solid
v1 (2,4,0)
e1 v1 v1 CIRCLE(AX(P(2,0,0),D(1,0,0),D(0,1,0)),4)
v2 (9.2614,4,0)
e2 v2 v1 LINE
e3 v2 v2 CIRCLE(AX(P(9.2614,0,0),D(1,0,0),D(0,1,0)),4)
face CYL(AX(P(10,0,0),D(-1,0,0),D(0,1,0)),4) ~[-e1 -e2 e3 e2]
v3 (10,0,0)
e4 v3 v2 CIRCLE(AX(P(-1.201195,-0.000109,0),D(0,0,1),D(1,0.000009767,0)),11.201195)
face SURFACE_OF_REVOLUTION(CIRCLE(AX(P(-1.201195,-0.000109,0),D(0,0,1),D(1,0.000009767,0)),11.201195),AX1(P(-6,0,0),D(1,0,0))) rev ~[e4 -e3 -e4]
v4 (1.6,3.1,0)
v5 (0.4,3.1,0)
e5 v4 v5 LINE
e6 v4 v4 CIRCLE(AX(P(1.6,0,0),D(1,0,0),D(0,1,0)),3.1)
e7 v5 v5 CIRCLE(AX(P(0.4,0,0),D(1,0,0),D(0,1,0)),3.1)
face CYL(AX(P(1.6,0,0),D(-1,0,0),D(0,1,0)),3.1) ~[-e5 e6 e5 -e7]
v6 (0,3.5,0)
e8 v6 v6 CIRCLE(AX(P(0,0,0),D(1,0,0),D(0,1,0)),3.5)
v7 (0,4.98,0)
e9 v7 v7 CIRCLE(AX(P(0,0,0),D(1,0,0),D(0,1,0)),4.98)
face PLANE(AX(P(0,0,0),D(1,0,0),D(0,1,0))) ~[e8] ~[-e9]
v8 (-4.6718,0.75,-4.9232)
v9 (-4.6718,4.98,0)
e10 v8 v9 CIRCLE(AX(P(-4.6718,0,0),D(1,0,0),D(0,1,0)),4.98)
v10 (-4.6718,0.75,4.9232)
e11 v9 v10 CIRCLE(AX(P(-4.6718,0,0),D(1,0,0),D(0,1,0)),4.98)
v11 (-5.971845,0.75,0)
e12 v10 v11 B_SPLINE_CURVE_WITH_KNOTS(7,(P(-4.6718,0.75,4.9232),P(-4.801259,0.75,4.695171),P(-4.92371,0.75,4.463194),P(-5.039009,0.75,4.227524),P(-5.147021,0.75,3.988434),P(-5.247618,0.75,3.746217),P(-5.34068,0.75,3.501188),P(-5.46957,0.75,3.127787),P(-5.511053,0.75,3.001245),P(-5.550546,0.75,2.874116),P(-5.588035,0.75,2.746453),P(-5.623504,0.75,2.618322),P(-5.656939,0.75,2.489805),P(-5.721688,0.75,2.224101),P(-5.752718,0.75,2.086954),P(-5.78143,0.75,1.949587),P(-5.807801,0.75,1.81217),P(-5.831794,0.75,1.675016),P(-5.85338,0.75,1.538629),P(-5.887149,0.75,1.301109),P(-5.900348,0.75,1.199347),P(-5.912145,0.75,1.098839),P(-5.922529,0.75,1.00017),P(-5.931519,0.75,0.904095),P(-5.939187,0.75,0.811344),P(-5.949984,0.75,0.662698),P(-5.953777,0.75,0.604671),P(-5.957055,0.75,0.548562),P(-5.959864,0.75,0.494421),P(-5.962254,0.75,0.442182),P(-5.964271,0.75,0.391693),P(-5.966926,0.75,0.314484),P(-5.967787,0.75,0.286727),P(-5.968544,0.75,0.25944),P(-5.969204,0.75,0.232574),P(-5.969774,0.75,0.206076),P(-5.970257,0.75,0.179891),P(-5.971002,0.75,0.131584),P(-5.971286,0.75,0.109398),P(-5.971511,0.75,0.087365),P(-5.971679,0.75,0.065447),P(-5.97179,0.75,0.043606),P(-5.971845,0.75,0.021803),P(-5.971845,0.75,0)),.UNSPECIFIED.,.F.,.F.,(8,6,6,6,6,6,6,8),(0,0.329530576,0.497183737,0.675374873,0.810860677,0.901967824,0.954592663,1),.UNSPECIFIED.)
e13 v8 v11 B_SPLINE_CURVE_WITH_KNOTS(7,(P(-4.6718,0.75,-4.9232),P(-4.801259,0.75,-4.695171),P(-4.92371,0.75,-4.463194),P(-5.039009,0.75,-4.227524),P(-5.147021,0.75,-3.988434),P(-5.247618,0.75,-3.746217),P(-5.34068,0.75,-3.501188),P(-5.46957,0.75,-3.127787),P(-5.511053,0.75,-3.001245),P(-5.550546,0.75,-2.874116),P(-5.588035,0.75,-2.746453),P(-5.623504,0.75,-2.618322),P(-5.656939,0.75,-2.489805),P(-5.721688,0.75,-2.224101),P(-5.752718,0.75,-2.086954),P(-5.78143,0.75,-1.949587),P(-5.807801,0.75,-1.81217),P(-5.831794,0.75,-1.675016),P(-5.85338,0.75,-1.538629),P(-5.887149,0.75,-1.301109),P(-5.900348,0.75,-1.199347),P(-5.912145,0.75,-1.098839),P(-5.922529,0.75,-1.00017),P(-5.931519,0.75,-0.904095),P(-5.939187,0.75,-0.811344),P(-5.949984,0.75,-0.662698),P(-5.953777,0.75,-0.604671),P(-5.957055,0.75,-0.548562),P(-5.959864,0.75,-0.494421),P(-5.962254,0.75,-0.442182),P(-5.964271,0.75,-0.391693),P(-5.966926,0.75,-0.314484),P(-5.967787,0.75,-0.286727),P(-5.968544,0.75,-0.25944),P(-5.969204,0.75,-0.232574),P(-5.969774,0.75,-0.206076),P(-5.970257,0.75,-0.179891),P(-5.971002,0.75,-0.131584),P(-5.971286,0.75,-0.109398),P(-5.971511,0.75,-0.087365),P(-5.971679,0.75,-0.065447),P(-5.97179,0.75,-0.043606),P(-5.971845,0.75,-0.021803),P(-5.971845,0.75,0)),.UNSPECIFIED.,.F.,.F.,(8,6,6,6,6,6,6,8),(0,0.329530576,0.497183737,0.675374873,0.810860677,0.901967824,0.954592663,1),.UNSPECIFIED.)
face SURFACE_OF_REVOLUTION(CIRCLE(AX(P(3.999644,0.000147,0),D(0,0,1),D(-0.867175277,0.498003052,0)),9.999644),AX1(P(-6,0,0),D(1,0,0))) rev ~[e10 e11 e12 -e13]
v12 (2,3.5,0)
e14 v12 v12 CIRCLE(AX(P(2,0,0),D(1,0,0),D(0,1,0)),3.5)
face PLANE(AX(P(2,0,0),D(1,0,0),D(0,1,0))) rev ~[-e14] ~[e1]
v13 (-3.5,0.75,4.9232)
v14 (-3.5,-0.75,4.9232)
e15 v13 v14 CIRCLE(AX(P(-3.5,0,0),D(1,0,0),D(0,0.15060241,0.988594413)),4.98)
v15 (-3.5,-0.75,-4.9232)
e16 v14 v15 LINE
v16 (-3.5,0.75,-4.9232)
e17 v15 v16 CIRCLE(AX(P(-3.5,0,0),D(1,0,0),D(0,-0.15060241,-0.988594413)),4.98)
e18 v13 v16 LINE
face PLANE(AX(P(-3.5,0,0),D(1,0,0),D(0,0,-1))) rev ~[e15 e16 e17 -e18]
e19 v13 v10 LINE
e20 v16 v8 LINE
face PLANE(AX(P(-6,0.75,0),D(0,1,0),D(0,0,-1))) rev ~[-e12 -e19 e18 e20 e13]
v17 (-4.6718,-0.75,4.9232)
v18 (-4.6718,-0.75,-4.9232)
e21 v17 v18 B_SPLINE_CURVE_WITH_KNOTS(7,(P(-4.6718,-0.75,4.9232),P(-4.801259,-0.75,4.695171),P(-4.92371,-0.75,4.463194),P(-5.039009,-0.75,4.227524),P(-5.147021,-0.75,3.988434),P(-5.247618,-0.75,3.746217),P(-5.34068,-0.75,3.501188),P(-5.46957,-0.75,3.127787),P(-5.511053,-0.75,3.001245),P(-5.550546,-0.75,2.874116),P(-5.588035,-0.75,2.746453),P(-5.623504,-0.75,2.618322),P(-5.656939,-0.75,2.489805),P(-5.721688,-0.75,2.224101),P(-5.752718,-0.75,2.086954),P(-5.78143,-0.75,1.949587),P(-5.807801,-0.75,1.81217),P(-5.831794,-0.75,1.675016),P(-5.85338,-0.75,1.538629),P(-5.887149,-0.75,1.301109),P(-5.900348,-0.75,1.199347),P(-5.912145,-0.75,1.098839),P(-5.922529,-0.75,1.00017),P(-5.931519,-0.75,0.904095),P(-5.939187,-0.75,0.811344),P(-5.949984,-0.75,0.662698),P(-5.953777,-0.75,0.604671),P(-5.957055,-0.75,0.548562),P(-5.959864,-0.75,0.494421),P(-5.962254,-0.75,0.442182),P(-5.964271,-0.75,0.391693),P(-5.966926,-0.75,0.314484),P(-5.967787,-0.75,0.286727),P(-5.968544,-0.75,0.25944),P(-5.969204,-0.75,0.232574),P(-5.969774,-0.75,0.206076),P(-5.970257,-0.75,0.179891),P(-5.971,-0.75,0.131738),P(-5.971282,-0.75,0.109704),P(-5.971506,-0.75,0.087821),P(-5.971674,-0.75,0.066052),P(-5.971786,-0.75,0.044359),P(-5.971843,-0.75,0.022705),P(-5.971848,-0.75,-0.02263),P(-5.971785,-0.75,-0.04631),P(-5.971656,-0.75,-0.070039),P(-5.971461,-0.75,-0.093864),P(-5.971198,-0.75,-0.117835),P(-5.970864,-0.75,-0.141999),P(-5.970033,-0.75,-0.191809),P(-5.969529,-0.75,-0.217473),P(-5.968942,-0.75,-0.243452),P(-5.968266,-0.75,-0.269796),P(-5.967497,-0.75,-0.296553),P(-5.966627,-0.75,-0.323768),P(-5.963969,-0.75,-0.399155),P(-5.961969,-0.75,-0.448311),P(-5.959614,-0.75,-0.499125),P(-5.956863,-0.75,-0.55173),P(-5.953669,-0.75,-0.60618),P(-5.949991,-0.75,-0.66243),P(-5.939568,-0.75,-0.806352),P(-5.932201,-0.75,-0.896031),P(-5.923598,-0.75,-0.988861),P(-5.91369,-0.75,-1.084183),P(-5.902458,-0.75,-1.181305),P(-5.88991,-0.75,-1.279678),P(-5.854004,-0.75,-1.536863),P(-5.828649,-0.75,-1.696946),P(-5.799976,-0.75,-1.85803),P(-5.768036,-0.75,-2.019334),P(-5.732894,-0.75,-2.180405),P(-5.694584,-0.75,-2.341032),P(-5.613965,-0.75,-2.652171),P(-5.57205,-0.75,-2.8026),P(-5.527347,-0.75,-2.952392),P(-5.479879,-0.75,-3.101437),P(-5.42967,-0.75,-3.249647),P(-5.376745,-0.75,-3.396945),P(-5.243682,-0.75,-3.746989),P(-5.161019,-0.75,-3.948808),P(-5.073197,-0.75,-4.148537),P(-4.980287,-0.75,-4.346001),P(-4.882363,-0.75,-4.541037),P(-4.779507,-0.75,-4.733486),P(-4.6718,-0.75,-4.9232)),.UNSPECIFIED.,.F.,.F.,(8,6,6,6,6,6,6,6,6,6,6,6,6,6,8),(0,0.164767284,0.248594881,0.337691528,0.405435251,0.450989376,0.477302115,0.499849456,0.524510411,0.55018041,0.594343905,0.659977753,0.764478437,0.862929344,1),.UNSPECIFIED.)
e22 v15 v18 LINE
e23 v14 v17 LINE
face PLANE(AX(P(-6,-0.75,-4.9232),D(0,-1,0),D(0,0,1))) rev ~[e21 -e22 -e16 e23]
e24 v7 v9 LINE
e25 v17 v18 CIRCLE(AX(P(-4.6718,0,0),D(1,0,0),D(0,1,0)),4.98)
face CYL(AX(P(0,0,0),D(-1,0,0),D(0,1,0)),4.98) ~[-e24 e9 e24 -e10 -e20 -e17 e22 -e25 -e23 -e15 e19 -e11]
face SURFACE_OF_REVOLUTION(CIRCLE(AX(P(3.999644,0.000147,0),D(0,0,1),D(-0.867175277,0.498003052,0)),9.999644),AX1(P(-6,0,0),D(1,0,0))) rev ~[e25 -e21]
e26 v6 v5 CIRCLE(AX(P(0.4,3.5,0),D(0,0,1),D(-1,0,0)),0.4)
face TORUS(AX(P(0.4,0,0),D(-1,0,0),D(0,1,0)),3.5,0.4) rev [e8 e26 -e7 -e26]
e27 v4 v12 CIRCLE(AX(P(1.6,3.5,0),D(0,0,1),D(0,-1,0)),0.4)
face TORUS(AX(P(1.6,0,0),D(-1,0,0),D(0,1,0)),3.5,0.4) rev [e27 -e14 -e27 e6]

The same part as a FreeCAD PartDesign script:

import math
import FreeCAD as App
import Part
import Sketcher
from FreeCAD import Vector
Q = App.Units.Quantity


def add_polygon(sketch, points):
    """Adds a closed chain of lines whose ends are joined by coincident constraints."""
    first, n = sketch.GeometryCount, len(points)
    for a, b in zip(points, points[1:] + points[:1]):
        sketch.addGeometry(Part.LineSegment(App.Vector(*a, 0), App.Vector(*b, 0)), False)
    for i in range(n):
        sketch.addConstraint(Sketcher.Constraint("Coincident", first + i, 2, first + (i + 1) % n, 1))

doc = App.newDocument("Part")
body = doc.addObject("PartDesign::Body", "Body")

sketch1 = doc.addObject("Sketcher::SketchObject", "Sketch")
body.addObject(sketch1)
sketch1.AttachmentSupport = (doc.XY_Plane, [""])
sketch1.MapMode = "FlatFace"
sketch1.addGeometry(Part.ArcOfCircle(Part.Circle(Vector(4, 0, 0), Vector(0, 0, 1), 10.000026), math.radians(150.132316), math.radians(180)), False)
sketch1.addGeometry(Part.LineSegment(Vector(-6, 0, 0), Vector(10, 0, 0)), False)
sketch1.addGeometry(Part.LineSegment(Vector(10, 0, 0), Vector(10, 4, 0)), False)
sketch1.addGeometry(Part.LineSegment(Vector(10, 4, 0), Vector(0, 4, 0)), False)
sketch1.addGeometry(Part.LineSegment(Vector(0, 4, 0), Vector(0, 4.98, 0)), False)
sketch1.addGeometry(Part.LineSegment(Vector(0, 4.98, 0), Vector(-4.6718, 4.98, 0)), False)
sketch1.addConstraint(Sketcher.Constraint("Coincident", 0, 2, 1, 1))
sketch1.addConstraint(Sketcher.Constraint("Coincident", 1, 2, 2, 1))
sketch1.addConstraint(Sketcher.Constraint("Coincident", 2, 2, 3, 1))
sketch1.addConstraint(Sketcher.Constraint("Coincident", 3, 2, 4, 1))
sketch1.addConstraint(Sketcher.Constraint("Coincident", 4, 2, 5, 1))
sketch1.addConstraint(Sketcher.Constraint("Coincident", 5, 2, 0, 1))
sketch1.addConstraint(Sketcher.Constraint("Horizontal", 1))
sketch1.addConstraint(Sketcher.Constraint("Vertical", 2))
sketch1.addConstraint(Sketcher.Constraint("Horizontal", 3))
sketch1.addConstraint(Sketcher.Constraint("Vertical", 4))
sketch1.addConstraint(Sketcher.Constraint("Horizontal", 5))
sketch1.addConstraint(Sketcher.Constraint("PointOnObject", 0, 3, -1))
sketch1.addConstraint(Sketcher.Constraint("PointOnObject", 0, 2, -1))
sketch1.addConstraint(Sketcher.Constraint("PointOnObject", 3, 2, -2))
sketch1.addConstraint(Sketcher.Constraint("Radius", 0, Q("10 mm")))
sketch1.addConstraint(Sketcher.Constraint("DistanceX", 3, 2, 3, 1, Q("10 mm")))
sketch1.addConstraint(Sketcher.Constraint("DistanceX", 0, 2, -1, 1, Q("6 mm")))
sketch1.addConstraint(Sketcher.Constraint("DistanceY", 2, 1, 2, 2, Q("4 mm")))
sketch1.addConstraint(Sketcher.Constraint("DistanceY", 4, 1, 4, 2, Q("0.98 mm")))
revolution = doc.addObject("PartDesign::Revolution", "Revolution")
body.addObject(revolution)
revolution.Profile = sketch1
revolution.ReferenceAxis = (sketch1, ["H_Axis"])
revolution.Angle = 360

sketch2 = doc.addObject("Sketcher::SketchObject", "Sketch001")
body.addObject(sketch2)
sketch2.AttachmentSupport = (doc.YZ_Plane, [""])
sketch2.MapMode = "FlatFace"
sketch2.AttachmentOffset = App.Placement(Vector(0, 0, -6), App.Rotation())
add_polygon(sketch2, [(0.75, 4.98), (-0.75, 4.98), (-0.75, -4.98), (0.75, -4.98)])
sketch2.addConstraint(Sketcher.Constraint("Horizontal", 0))
sketch2.addConstraint(Sketcher.Constraint("Vertical", 1))
sketch2.addConstraint(Sketcher.Constraint("Horizontal", 2))
sketch2.addConstraint(Sketcher.Constraint("Vertical", 3))
sketch2.addConstraint(Sketcher.Constraint("Symmetric", 0, 2, 2, 2, -1, 1))
sketch2.addConstraint(Sketcher.Constraint("DistanceX", 0, 2, 0, 1, Q("1.5 mm")))
sketch2.addConstraint(Sketcher.Constraint("DistanceY", 1, 2, 1, 1, Q("9.96 mm")))
pocket1 = doc.addObject("PartDesign::Pocket", "Pocket")
body.addObject(pocket1)
pocket1.Profile = sketch2
pocket1.Length = 2.5
pocket1.Reversed = True

sketch3 = doc.addObject("Sketcher::SketchObject", "Sketch002")
body.addObject(sketch3)
sketch3.AttachmentSupport = (doc.XY_Plane, [""])
sketch3.MapMode = "FlatFace"
sketch3.addGeometry(Part.ArcOfCircle(Part.Circle(Vector(-1.201195, -0.000109, 0), Vector(0, 0, 1), 11.201195), math.radians(0.00056), math.radians(20.923094)), False)
sketch3.addGeometry(Part.LineSegment(Vector(10, 0, 0), Vector(10, 4, 0)), False)
sketch3.addGeometry(Part.LineSegment(Vector(10, 4, 0), Vector(9.2614, 4, 0)), False)
sketch3.addConstraint(Sketcher.Constraint("Tangent", 0, 1, 1, 1))
sketch3.addConstraint(Sketcher.Constraint("Coincident", 1, 2, 2, 1))
sketch3.addConstraint(Sketcher.Constraint("Coincident", 2, 2, 0, 2))
sketch3.addConstraint(Sketcher.Constraint("Vertical", 1))
sketch3.addConstraint(Sketcher.Constraint("Horizontal", 2))
sketch3.addConstraint(Sketcher.Constraint("PointOnObject", 0, 3, -1))
sketch3.addConstraint(Sketcher.Constraint("DistanceX", -1, 1, 0, 1, Q("10 mm")))
sketch3.addConstraint(Sketcher.Constraint("DistanceY", 1, 1, 1, 2, Q("4 mm")))
sketch3.addConstraint(Sketcher.Constraint("Radius", 0, Q("11.2012 mm")))
groove = doc.addObject("PartDesign::Groove", "Groove")
body.addObject(groove)
groove.Profile = sketch3
groove.ReferenceAxis = (sketch3, ["H_Axis"])
groove.Angle = 360

sketch4 = doc.addObject("Sketcher::SketchObject", "Sketch003")
body.addObject(sketch4)
sketch4.AttachmentSupport = (doc.XY_Plane, [""])
sketch4.MapMode = "FlatFace"
sketch4.addGeometry(Part.LineSegment(Vector(0, 4, 0), Vector(0, 3.5, 0)), False)
sketch4.addGeometry(Part.ArcOfCircle(Part.Circle(Vector(0.4, 3.5, 0), Vector(0, 0, 1), 0.4), math.radians(180), math.radians(270)), False)
sketch4.addGeometry(Part.LineSegment(Vector(0.4, 3.1, 0), Vector(1.6, 3.1, 0)), False)
sketch4.addGeometry(Part.ArcOfCircle(Part.Circle(Vector(1.6, 3.5, 0), Vector(0, 0, 1), 0.4), math.radians(-90), math.radians(0)), False)
sketch4.addGeometry(Part.LineSegment(Vector(2, 3.5, 0), Vector(2, 4, 0)), False)
sketch4.addGeometry(Part.LineSegment(Vector(2, 4, 0), Vector(0, 4, 0)), False)
sketch4.addConstraint(Sketcher.Constraint("Tangent", 0, 2, 1, 1))
sketch4.addConstraint(Sketcher.Constraint("Tangent", 1, 2, 2, 1))
sketch4.addConstraint(Sketcher.Constraint("Tangent", 2, 2, 3, 1))
sketch4.addConstraint(Sketcher.Constraint("Tangent", 3, 2, 4, 1))
sketch4.addConstraint(Sketcher.Constraint("Coincident", 4, 2, 5, 1))
sketch4.addConstraint(Sketcher.Constraint("Coincident", 5, 2, 0, 1))
sketch4.addConstraint(Sketcher.Constraint("Vertical", 0))
sketch4.addConstraint(Sketcher.Constraint("Horizontal", 2))
sketch4.addConstraint(Sketcher.Constraint("Vertical", 4))
sketch4.addConstraint(Sketcher.Constraint("Horizontal", 5))
sketch4.addConstraint(Sketcher.Constraint("Equal", 1, 3))
sketch4.addConstraint(Sketcher.Constraint("PointOnObject", 0, 2, -2))
sketch4.addConstraint(Sketcher.Constraint("Radius", 1, Q("0.4 mm")))
sketch4.addConstraint(Sketcher.Constraint("DistanceX", 5, 2, 5, 1, Q("2 mm")))
sketch4.addConstraint(Sketcher.Constraint("DistanceY", 0, 2, 0, 1, Q("0.5 mm")))
sketch4.addConstraint(Sketcher.Constraint("DistanceY", -1, 1, 4, 2, Q("4 mm")))
groove2 = doc.addObject("PartDesign::Groove", "Groove001")
body.addObject(groove2)
groove2.Profile = sketch4
groove2.ReferenceAxis = (sketch4, ["H_Axis"])
groove2.Angle = 360

doc.recompute()
